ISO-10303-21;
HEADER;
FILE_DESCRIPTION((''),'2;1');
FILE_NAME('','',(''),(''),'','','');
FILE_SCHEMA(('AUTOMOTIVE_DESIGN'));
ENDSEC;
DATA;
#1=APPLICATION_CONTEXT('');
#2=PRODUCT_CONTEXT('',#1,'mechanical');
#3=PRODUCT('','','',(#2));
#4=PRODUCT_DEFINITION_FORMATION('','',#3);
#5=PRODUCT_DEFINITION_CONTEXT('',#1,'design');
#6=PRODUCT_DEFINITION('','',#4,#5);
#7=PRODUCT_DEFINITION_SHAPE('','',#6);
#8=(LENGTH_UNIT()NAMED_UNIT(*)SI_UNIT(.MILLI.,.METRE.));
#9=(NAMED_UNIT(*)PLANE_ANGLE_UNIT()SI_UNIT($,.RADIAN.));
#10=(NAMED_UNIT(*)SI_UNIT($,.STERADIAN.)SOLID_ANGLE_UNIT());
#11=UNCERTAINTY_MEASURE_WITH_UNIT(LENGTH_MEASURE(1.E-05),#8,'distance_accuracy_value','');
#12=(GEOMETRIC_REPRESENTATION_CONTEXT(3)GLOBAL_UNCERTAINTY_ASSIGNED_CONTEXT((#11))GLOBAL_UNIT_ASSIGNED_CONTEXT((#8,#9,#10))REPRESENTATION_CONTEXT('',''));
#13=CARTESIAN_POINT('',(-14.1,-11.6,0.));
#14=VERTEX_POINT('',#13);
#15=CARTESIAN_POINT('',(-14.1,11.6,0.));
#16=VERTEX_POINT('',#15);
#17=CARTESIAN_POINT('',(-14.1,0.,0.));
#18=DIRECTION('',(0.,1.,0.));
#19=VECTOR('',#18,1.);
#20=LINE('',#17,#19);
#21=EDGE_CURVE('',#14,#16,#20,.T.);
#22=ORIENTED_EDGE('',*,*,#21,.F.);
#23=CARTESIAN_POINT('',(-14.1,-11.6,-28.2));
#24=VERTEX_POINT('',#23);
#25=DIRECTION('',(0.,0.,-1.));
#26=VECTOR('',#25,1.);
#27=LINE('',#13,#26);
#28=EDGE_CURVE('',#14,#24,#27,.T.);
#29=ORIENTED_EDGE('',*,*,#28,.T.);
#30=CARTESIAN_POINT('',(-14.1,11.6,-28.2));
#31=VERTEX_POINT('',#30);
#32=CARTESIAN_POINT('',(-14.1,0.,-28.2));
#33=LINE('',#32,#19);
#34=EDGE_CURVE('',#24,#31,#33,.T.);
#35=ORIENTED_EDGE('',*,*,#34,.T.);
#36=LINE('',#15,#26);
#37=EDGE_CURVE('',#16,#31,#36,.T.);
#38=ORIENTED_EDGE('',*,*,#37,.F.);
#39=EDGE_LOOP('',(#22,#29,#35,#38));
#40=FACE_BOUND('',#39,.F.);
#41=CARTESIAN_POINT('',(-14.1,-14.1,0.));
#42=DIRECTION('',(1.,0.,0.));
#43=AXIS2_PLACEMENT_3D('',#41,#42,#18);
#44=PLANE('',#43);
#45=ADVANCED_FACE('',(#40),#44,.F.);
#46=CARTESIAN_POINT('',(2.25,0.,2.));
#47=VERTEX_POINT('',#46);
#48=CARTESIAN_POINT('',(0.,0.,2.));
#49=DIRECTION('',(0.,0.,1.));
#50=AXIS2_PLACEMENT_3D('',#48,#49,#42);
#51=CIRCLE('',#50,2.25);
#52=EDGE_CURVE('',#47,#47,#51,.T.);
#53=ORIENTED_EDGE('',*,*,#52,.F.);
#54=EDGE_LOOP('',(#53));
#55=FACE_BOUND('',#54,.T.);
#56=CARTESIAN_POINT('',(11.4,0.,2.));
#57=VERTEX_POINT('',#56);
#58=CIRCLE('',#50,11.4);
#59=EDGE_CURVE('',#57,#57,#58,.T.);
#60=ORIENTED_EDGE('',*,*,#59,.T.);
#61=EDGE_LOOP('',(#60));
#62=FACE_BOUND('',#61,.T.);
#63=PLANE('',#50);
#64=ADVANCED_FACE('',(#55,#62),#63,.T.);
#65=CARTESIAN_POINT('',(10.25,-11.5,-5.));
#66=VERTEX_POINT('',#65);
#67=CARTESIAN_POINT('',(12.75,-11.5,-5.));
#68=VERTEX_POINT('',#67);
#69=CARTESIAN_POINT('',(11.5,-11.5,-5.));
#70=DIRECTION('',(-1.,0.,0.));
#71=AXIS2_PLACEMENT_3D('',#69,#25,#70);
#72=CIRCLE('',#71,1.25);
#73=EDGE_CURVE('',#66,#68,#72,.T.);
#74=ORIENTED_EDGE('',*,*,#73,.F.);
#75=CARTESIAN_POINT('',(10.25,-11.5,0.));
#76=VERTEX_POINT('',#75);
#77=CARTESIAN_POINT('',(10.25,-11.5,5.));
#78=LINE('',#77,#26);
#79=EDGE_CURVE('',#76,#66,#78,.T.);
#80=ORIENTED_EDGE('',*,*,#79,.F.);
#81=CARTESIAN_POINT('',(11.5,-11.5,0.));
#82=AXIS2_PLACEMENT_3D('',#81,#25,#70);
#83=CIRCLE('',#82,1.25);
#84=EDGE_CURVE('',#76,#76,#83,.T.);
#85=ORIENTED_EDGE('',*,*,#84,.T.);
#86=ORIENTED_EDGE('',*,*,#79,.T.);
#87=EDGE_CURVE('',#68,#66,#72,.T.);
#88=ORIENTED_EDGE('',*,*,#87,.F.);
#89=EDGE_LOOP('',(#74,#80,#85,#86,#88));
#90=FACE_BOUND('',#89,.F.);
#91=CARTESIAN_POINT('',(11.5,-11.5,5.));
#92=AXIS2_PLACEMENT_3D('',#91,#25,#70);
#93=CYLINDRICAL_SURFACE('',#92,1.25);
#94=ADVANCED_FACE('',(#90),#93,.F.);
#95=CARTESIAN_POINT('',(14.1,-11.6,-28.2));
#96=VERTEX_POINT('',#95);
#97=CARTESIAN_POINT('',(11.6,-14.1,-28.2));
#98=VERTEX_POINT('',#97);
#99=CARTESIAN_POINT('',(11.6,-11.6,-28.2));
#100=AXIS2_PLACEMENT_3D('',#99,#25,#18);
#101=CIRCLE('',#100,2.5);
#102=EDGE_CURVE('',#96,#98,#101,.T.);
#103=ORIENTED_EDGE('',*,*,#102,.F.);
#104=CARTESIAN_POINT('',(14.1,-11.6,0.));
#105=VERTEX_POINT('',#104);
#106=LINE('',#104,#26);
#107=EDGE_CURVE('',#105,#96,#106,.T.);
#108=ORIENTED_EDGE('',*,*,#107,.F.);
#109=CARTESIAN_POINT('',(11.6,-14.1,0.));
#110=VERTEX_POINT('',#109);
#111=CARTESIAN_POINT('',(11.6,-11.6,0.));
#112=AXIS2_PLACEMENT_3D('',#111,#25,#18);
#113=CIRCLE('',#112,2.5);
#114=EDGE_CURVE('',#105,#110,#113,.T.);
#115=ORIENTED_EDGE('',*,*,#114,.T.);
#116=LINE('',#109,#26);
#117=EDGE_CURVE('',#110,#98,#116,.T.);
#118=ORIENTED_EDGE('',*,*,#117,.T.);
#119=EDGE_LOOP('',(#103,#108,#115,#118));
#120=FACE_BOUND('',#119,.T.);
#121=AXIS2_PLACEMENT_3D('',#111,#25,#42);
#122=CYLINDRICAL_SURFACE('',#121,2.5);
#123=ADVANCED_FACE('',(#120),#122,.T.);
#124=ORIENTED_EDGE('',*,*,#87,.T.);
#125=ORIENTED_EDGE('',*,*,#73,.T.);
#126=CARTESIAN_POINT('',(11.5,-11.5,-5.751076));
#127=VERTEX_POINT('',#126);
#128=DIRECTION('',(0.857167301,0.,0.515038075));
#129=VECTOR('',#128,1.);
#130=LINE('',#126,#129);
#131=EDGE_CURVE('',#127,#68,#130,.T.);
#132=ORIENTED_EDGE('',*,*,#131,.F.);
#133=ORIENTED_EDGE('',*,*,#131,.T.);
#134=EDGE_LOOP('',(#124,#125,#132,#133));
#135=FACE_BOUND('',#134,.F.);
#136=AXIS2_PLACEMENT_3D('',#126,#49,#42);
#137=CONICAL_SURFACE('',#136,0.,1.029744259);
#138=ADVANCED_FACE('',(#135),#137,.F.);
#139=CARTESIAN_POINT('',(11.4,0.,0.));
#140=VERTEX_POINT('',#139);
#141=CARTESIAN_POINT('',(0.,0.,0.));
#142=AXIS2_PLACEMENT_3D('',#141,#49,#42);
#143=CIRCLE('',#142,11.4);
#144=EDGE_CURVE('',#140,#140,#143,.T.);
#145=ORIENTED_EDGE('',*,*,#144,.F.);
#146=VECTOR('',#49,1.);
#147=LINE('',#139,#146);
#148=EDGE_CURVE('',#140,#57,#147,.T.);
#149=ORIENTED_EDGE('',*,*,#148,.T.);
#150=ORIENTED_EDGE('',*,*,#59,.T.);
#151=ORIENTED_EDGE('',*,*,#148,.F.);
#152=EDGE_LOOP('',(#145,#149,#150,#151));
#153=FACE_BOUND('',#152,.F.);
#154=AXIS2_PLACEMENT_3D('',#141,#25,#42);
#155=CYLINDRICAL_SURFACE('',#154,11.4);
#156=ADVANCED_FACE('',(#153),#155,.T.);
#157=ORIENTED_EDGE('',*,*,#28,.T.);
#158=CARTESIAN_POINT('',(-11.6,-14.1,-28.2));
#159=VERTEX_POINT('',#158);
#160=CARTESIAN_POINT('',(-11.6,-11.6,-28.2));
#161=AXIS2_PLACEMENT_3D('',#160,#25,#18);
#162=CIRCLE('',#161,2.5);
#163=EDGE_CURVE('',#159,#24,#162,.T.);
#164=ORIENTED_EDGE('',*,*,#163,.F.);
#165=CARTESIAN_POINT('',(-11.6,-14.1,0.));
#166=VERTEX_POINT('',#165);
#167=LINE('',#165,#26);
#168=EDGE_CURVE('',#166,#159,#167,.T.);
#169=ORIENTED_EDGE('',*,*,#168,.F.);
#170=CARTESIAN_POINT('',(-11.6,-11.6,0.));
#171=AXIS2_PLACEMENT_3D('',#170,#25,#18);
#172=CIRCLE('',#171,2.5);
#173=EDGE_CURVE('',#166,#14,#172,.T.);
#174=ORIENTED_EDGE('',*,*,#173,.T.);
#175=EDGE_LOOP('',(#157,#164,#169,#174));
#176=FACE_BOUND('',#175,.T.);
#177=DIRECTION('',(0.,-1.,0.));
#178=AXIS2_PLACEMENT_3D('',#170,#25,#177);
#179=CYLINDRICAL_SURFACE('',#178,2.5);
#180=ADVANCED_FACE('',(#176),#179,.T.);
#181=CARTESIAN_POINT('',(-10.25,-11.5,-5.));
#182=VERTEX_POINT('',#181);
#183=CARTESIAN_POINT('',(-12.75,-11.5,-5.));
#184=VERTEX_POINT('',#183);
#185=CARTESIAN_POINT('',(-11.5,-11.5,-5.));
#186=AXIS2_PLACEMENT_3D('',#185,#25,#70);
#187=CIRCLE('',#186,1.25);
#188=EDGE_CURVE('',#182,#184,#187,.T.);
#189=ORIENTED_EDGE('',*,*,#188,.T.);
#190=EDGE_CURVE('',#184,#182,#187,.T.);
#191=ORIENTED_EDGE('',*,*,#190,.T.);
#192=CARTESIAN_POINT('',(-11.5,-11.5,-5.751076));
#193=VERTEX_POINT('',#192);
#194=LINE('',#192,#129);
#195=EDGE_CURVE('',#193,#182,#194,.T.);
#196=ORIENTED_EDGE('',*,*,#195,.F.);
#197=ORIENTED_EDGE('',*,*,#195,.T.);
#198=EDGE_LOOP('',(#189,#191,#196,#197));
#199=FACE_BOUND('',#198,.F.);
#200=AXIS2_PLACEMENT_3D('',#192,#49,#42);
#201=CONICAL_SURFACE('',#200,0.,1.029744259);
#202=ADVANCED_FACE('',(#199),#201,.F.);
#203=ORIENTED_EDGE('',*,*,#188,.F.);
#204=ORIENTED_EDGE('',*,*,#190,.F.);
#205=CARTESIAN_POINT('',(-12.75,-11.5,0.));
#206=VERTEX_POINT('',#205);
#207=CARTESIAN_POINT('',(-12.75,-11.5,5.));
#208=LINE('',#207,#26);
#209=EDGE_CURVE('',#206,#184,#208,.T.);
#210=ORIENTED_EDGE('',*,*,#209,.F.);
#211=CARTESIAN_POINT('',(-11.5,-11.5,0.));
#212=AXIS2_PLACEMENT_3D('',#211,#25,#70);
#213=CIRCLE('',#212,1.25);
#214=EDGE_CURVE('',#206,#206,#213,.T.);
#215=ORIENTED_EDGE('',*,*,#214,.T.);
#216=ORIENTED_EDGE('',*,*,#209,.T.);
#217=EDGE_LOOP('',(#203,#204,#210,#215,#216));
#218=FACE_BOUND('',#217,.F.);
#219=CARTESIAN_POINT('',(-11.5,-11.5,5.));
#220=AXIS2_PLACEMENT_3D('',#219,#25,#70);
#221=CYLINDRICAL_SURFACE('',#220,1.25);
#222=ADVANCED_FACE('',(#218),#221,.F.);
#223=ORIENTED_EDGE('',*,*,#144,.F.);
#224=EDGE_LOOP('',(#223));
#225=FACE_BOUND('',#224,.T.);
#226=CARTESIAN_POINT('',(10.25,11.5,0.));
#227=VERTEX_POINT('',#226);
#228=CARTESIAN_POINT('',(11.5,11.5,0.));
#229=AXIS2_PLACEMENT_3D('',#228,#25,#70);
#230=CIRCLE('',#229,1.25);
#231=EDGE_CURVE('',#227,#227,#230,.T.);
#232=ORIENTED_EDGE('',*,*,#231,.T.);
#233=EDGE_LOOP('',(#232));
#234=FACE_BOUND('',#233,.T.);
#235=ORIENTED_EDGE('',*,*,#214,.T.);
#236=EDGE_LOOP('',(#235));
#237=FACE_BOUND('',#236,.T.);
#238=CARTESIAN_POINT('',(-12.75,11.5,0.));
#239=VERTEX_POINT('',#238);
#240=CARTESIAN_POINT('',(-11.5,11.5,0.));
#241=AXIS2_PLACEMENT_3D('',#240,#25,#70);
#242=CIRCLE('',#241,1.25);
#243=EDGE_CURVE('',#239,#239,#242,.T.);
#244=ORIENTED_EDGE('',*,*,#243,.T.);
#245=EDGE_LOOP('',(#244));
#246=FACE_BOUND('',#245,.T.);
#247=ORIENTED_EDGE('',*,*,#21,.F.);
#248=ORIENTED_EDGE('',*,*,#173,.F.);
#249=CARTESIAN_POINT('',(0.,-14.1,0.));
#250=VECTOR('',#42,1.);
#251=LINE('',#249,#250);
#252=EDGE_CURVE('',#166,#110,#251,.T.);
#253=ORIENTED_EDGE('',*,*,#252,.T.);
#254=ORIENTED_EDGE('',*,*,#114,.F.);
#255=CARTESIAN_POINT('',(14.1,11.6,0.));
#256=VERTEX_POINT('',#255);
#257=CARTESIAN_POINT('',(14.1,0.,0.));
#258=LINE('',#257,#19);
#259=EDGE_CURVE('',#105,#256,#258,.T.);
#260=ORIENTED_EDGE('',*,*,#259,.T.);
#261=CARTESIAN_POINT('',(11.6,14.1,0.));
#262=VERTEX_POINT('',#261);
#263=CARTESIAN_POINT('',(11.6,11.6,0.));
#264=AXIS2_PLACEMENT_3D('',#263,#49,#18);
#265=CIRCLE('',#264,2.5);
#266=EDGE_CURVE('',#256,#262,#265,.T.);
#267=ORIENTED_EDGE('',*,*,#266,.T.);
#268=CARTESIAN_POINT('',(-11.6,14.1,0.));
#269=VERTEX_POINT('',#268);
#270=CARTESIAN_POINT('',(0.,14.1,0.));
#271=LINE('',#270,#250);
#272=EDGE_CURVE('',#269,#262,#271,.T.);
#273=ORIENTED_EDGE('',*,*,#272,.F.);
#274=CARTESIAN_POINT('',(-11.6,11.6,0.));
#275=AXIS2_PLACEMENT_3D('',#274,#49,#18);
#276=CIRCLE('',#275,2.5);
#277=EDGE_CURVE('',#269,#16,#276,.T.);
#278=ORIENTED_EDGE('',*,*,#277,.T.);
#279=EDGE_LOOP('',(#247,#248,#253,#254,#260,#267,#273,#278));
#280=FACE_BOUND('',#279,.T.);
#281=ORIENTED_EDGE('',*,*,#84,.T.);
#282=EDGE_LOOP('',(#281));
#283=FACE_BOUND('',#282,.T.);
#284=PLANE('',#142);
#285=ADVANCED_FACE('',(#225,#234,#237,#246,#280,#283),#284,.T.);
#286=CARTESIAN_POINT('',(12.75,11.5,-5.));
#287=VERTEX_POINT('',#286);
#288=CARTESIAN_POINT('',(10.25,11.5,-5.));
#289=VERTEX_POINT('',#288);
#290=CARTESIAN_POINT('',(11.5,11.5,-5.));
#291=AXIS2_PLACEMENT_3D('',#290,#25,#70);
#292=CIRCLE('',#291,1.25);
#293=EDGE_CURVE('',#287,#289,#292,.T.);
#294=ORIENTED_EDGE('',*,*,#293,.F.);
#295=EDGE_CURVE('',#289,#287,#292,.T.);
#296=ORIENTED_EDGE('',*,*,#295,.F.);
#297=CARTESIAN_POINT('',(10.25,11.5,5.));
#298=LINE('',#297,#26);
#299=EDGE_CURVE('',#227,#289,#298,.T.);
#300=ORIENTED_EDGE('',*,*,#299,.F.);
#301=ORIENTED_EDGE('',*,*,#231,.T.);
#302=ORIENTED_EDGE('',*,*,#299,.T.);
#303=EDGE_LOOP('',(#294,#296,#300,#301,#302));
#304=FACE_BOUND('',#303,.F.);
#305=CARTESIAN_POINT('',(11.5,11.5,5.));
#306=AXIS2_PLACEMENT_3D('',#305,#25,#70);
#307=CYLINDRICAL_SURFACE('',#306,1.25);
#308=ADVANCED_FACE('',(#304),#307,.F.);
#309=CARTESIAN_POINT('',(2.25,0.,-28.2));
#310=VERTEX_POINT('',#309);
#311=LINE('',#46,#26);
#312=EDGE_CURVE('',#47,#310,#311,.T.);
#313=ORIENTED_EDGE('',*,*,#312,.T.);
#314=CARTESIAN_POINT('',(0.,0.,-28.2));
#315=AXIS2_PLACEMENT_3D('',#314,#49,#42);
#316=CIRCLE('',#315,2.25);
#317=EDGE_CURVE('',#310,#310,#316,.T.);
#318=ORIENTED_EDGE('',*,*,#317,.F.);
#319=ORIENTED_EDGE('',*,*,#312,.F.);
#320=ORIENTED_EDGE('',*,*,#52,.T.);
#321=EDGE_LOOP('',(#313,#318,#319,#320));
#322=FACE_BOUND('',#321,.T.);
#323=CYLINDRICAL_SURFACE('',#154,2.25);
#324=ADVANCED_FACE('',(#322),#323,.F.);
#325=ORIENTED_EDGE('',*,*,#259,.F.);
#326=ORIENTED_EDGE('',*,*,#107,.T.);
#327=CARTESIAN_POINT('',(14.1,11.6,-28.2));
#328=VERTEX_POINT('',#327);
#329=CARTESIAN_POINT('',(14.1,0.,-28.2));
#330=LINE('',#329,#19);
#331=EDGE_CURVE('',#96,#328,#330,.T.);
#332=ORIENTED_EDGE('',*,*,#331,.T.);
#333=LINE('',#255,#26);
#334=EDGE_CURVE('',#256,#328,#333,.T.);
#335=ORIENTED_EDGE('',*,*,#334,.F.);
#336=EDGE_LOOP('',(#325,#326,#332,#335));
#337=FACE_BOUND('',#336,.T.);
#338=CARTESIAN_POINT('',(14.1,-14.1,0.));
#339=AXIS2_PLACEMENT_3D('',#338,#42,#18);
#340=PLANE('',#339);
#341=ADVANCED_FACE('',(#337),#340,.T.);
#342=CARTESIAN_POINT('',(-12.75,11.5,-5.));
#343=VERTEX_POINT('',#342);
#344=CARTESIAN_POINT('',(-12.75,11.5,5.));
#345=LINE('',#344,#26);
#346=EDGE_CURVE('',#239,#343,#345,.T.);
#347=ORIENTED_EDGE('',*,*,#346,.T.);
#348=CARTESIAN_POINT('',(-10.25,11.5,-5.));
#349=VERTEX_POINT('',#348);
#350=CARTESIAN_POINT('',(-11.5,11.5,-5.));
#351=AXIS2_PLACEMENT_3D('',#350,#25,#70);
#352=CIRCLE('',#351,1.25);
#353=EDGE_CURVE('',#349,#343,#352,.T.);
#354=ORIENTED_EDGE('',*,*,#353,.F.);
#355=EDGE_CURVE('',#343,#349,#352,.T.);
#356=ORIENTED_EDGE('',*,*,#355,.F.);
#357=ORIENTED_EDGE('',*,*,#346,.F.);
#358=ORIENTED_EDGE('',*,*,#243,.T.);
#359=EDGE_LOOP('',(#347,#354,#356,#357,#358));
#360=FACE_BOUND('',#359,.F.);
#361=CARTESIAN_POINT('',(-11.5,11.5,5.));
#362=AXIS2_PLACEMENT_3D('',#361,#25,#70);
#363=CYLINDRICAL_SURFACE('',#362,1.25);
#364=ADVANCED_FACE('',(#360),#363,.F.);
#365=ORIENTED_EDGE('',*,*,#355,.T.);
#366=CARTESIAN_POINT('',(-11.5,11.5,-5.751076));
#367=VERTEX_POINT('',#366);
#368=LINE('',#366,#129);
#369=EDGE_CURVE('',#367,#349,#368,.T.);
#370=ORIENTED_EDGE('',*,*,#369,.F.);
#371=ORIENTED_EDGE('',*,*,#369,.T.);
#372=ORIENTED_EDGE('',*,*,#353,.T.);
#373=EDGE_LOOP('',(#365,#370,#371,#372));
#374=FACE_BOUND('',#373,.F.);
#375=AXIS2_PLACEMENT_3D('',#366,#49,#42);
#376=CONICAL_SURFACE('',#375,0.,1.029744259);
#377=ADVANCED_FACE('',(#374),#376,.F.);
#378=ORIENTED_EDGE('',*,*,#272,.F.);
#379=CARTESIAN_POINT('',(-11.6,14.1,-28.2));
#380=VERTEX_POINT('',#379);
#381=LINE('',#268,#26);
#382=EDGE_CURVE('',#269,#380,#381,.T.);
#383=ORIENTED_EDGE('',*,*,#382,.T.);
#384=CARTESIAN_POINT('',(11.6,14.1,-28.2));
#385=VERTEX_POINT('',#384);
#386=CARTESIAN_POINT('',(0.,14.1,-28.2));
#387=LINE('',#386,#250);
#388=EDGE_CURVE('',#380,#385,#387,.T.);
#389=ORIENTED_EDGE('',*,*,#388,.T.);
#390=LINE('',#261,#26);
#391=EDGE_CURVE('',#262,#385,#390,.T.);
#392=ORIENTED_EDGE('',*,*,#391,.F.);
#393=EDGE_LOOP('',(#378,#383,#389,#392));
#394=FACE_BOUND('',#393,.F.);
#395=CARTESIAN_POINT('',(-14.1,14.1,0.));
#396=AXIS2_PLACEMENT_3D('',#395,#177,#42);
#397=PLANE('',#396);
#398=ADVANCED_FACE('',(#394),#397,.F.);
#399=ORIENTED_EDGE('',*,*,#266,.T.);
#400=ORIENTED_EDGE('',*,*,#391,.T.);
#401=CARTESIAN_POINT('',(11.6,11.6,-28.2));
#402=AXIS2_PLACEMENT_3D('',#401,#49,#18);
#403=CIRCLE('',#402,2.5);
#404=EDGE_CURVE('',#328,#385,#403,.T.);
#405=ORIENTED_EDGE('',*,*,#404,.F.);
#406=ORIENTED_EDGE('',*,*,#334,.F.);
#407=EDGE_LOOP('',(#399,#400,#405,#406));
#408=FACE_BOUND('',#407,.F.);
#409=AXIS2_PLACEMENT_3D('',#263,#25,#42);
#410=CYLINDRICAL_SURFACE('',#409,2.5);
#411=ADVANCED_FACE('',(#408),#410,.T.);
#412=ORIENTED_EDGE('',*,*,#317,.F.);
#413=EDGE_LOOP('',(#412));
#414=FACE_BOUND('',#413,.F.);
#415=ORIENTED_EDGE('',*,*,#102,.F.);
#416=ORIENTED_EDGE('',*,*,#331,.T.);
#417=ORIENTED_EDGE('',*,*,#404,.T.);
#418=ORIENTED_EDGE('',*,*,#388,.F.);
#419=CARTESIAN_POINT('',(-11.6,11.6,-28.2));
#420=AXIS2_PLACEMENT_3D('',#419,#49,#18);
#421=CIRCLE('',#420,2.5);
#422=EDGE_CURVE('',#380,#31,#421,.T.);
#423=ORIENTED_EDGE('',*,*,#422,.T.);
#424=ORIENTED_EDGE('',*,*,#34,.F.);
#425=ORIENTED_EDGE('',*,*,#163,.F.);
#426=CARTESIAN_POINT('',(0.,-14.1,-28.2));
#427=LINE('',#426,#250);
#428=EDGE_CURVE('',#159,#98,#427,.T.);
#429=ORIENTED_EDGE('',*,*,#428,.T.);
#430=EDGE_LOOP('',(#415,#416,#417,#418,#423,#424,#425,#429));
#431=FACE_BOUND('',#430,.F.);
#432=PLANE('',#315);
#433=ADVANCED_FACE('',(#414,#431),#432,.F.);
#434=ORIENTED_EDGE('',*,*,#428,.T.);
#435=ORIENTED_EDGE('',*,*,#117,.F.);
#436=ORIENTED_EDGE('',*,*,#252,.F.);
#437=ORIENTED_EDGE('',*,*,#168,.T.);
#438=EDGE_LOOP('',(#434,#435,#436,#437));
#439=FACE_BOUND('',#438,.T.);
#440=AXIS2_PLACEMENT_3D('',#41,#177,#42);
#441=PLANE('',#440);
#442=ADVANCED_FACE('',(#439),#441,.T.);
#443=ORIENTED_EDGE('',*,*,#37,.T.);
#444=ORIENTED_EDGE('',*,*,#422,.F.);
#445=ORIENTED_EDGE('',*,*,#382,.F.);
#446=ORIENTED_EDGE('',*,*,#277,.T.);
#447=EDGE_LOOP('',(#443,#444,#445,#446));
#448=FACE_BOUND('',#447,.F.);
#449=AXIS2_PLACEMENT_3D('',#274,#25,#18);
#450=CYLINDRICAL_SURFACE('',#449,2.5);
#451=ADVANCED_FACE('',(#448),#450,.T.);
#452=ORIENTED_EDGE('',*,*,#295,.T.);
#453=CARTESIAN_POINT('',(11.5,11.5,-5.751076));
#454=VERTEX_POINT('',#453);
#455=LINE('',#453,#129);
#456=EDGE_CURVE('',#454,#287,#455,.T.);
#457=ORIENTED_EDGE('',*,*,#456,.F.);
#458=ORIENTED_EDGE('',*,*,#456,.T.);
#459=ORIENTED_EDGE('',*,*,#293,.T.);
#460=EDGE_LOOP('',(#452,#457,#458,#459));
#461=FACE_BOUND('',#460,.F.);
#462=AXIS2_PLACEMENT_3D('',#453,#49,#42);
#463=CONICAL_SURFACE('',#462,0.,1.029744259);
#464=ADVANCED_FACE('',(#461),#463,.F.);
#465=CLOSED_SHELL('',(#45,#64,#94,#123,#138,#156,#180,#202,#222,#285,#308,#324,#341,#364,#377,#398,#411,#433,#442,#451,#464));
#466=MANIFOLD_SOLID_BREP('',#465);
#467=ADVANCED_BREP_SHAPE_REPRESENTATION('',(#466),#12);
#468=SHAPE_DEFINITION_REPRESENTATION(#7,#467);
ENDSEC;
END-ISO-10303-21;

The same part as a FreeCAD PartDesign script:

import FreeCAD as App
import Part
import Sketcher
from FreeCAD import Vector


def edges_at(feature, points):
    """Names of the edges that pass closest to the given points."""
    edges = feature.Shape.Edges
    near = lambda p: min(range(len(edges)), key=lambda i: edges[i].distToShape(Part.Vertex(*p))[0])
    return sorted({f"Edge{near(p) + 1}" for p in points})

doc = App.newDocument("Part")
body = doc.addObject("PartDesign::Body", "Body")

sketch1 = doc.addObject("Sketcher::SketchObject", "Sketch")
body.addObject(sketch1)
sketch1.AttachmentSupport = (doc.XY_Plane, [""])
sketch1.MapMode = "FlatFace"
sketch1.addGeometry([
    Part.LineSegment(Vector(-14.1, 14.1, 0), Vector(-14.1, -14.1, 0)),
    Part.LineSegment(Vector(-14.1, -14.1, 0), Vector(14.1, -14.1, 0)),
    Part.LineSegment(Vector(14.1, -14.1, 0), Vector(14.1, 14.1, 0)),
    Part.LineSegment(Vector(14.1, 14.1, 0), Vector(-14.1, 14.1, 0)),
    Part.Circle(Vector(0, 0, 0), Vector(0, 0, 1), 2.25),
], False)
sketch1.addConstraint([
    Sketcher.Constraint("Coincident", 0, 2, 1, 1),
    Sketcher.Constraint("Coincident", 1, 2, 2, 1),
    Sketcher.Constraint("Coincident", 2, 2, 3, 1),
    Sketcher.Constraint("Coincident", 3, 2, 0, 1),
    Sketcher.Constraint("Vertical", 0),
    Sketcher.Constraint("Horizontal", 1),
    Sketcher.Constraint("Vertical", 2),
    Sketcher.Constraint("Horizontal", 3),
    Sketcher.Constraint("Coincident", 4, 3, -1, 1),
    Sketcher.Constraint("Symmetric", 0, 2, 2, 2, -1, 1),
    Sketcher.Constraint("Equal", 3, 0),
    Sketcher.Constraint("Diameter", 4, 4.5),
    Sketcher.Constraint("DistanceX", 1, 1, 1, 2, 28.2),
])
pad1 = doc.addObject("PartDesign::Pad", "Pad")
body.addObject(pad1)
pad1.Profile = sketch1
pad1.Length = 28.2
pad1.Reversed = True

sketch2 = doc.addObject("Sketcher::SketchObject", "Sketch001")
body.addObject(sketch2)
sketch2.AttachmentSupport = (doc.XY_Plane, [""])
sketch2.MapMode = "FlatFace"
sketch2.addGeometry([
    Part.Circle(Vector(0, 0, 0), Vector(0, 0, 1), 11.4),
    Part.Circle(Vector(0, 0, 0), Vector(0, 0, 1), 2.25),
], False)
sketch2.addConstraint([
    Sketcher.Constraint("Coincident", 0, 3, -1, 1),
    Sketcher.Constraint("Coincident", 1, 3, -1, 1),
    Sketcher.Constraint("Diameter", 0, 22.8),
    Sketcher.Constraint("Diameter", 1, 4.5),
])
pad2 = doc.addObject("PartDesign::Pad", "Pad001")
body.addObject(pad2)
pad2.Profile = sketch2
pad2.Length = 2
doc.recompute()

fillet = doc.addObject("PartDesign::Fillet", "Fillet")
body.addObject(fillet)
fillet.Base = (pad2, edges_at(pad2, [
    (-14.1, -14.1, -14.1),
    (14.1, -14.1, -14.1),
    (-14.1, 14.1, -14.1),
    (14.1, 14.1, -14.1),
]))
fillet.Radius = 2.5

sketch3 = doc.addObject("Sketcher::SketchObject", "Sketch002")
body.addObject(sketch3)
sketch3.AttachmentSupport = (doc.XY_Plane, [""])
sketch3.MapMode = "FlatFace"
sketch3.addGeometry([
    Part.Circle(Vector(-11.5, 11.5, 0), Vector(0, 0, 1), 1.25),
    Part.Circle(Vector(11.5, 11.5, 0), Vector(0, 0, 1), 1.25),
    Part.Circle(Vector(11.5, -11.5, 0), Vector(0, 0, 1), 1.25),
    Part.Circle(Vector(-11.5, -11.5, 0), Vector(0, 0, 1), 1.25),
], False)
sketch3.addConstraint([
    Sketcher.Constraint("Equal", 0, 1),
    Sketcher.Constraint("Equal", 1, 2),
    Sketcher.Constraint("Equal", 2, 3),
    Sketcher.Constraint("Symmetric", 0, 3, 2, 3, -1, 1),
    Sketcher.Constraint("Symmetric", 1, 3, 3, 3, -1, 1),
    Sketcher.Constraint("Symmetric", 0, 3, 1, 3, -2),
    Sketcher.Constraint("Diameter", 0, 2.5),
    Sketcher.Constraint("DistanceX", 0, 3, 1, 3, 23.0),
    Sketcher.Constraint("DistanceY", 2, 3, 1, 3, 23.0),
])
doc.recompute()
hole = doc.addObject("PartDesign::Hole", "Hole")
body.addObject(hole)
hole.Profile = sketch3
hole.ThreadType = "None"
hole.Diameter = 2.5
hole.DepthType = "Dimension"
hole.Depth = 5
hole.DrillPoint = "Angled"
hole.DrillPointAngle = 118

doc.recompute()
